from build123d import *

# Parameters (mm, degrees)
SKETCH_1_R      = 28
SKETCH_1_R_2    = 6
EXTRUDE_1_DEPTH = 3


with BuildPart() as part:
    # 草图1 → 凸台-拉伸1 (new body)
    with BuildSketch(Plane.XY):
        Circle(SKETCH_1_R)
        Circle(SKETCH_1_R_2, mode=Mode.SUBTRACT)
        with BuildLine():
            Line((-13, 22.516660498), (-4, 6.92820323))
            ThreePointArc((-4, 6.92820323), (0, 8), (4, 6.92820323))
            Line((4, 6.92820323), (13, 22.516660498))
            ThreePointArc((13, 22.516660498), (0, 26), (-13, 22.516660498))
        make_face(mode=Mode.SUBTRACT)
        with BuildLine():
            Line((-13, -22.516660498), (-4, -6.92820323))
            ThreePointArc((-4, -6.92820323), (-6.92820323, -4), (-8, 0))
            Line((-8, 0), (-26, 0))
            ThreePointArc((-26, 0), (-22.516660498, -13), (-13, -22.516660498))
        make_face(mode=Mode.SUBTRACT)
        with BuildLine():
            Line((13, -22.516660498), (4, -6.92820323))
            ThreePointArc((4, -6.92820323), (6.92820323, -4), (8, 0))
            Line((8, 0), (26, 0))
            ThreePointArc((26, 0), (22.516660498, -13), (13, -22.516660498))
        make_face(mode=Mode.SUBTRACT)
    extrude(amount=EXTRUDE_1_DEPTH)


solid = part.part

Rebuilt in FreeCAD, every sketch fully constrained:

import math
import FreeCAD as App
import Part
import Sketcher

V = App.Vector
Q = App.Units.Quantity

doc = App.newDocument("Part")
body = doc.addObject("PartDesign::Body", "Body")

sketch1 = doc.addObject("Sketcher::SketchObject", "Sketch")
body.addObject(sketch1)
sketch1.AttachmentSupport = (doc.XY_Plane, [""])
sketch1.MapMode = "FlatFace"
sketch1.addGeometry([
    Part.Circle(V(0, 0, 0), V(0, 0, 1), 28),
    Part.LineSegment(V(-4, -7, 0), V(-13, -23, 0)),
    Part.ArcOfCircle(Part.Circle(V(0, 0, 0), V(0, 0, 1), 26), math.radians(-180), math.radians(-120)),
    Part.LineSegment(V(-26, 0, 0), V(-8, 0, 0)),
    Part.ArcOfCircle(Part.Circle(V(0, 0, 0), V(0, 0, 1), 8), math.radians(-180), math.radians(-120)),
    Part.ArcOfCircle(Part.Circle(V(0, 0, 0), V(0, 0, 1), 26), math.radians(-60), math.radians(0)),
    Part.LineSegment(V(13, -23, 0), V(4, -7, 0)),
    Part.ArcOfCircle(Part.Circle(V(0, 0, 0), V(0, 0, 1), 8), math.radians(-60), math.radians(0)),
    Part.LineSegment(V(8, 0, 0), V(26, 0, 0)),
    Part.Circle(V(0, 0, 0), V(0, 0, 1), 6),
    Part.LineSegment(V(-4, 7, 0), V(-13, 23, 0)),
    Part.ArcOfCircle(Part.Circle(V(0, 0, 0), V(0, 0, 1), 26), math.radians(60), math.radians(120)),
    Part.LineSegment(V(13, 23, 0), V(4, 7, 0)),
    Part.ArcOfCircle(Part.Circle(V(0, 0, 0), V(0, 0, 1), 8), math.radians(60), math.radians(120)),
], False)
sketch1.addConstraint([
    Sketcher.Constraint("Coincident", 1, 2, 2, 2),
    Sketcher.Constraint("Coincident", 2, 1, 3, 1),
    Sketcher.Constraint("Coincident", 3, 2, 4, 1),
    Sketcher.Constraint("Coincident", 4, 2, 1, 1),
    Sketcher.Constraint("Coincident", 5, 1, 6, 1),
    Sketcher.Constraint("Coincident", 6, 2, 7, 1),
    Sketcher.Constraint("Coincident", 7, 2, 8, 1),
    Sketcher.Constraint("Coincident", 8, 2, 5, 2),
    Sketcher.Constraint("Coincident", 10, 2, 11, 2),
    Sketcher.Constraint("Coincident", 11, 1, 12, 1),
    Sketcher.Constraint("Coincident", 12, 2, 13, 1),
    Sketcher.Constraint("Coincident", 13, 2, 10, 1),
    Sketcher.Constraint("Horizontal", 3),
    Sketcher.Constraint("Horizontal", 8),
    Sketcher.Constraint("Coincident", 0, 3, -1, 1),
    Sketcher.Constraint("Coincident", 2, 3, -1, 1),
    Sketcher.Constraint("Coincident", 4, 3, -1, 1),
    Sketcher.Constraint("Coincident", 5, 3, -1, 1),
    Sketcher.Constraint("Coincident", 7, 3, -1, 1),
    Sketcher.Constraint("Coincident", 9, 3, -1, 1),
    Sketcher.Constraint("Coincident", 11, 3, -1, 1),
    Sketcher.Constraint("Coincident", 13, 3, -1, 1),
    Sketcher.Constraint("Equal", 2, 5),
    Sketcher.Constraint("Equal", 4, 7),
    Sketcher.Constraint("Equal", 5, 11),
    Sketcher.Constraint("Equal", 7, 13),
    Sketcher.Constraint("PointOnObject", 2, 1, -1),
    Sketcher.Constraint("PointOnObject", 7, 2, -1),
    Sketcher.Constraint("Parallel", 6, 10),
    Sketcher.Constraint("Parallel", 1, 12),
    Sketcher.Constraint("Horizontal", 1, 2, 5, 1),
    Sketcher.Constraint("Horizontal", 4, 2, 6, 2),
    Sketcher.Constraint("Horizontal", 10, 2, 11, 1),
    Sketcher.Constraint("Vertical", 1, 2, 10, 2),
    Sketcher.Constraint("Diameter", 0, Q("56 mm")),
    Sketcher.Constraint("Diameter", 9, Q("12 mm")),
    Sketcher.Constraint("Radius", 2, Q("26 mm")),
    Sketcher.Constraint("Radius", 4, Q("8 mm")),
    Sketcher.Constraint("Angle", 1, Q("-120 deg")),
    Sketcher.Constraint("DistanceX", 1, 2, -1, 1, Q("13 mm")),
])
pad1 = doc.addObject("PartDesign::Pad", "Pad")
body.addObject(pad1)
pad1.Profile = sketch1
pad1.Length = 3

doc.recompute()
